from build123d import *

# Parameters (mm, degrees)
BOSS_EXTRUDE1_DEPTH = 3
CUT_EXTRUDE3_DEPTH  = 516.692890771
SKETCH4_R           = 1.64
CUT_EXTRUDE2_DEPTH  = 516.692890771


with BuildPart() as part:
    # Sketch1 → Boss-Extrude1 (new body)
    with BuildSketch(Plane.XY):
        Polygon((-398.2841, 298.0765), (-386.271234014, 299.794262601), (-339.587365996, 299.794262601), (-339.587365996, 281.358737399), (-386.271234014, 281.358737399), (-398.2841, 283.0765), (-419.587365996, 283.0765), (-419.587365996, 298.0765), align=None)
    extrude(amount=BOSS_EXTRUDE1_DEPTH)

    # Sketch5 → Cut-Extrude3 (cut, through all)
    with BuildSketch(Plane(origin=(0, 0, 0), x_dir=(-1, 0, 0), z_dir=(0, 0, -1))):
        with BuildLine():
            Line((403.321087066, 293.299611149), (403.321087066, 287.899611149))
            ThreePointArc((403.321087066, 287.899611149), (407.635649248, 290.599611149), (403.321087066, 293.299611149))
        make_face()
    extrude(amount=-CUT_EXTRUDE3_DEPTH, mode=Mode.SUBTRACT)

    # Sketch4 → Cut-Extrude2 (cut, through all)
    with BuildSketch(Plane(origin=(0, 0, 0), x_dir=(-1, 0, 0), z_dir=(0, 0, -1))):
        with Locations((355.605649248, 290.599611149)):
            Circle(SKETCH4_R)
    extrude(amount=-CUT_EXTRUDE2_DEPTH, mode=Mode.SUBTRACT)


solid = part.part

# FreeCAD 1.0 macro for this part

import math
import FreeCAD as App
import Part
import Sketcher
from FreeCAD import Vector
Q = App.Units.Quantity


def add_polygon(sketch, points):
    """Adds a closed chain of lines whose ends are joined by coincident constraints."""
    first, n = sketch.GeometryCount, len(points)
    for a, b in zip(points, points[1:] + points[:1]):
        sketch.addGeometry(Part.LineSegment(App.Vector(*a, 0), App.Vector(*b, 0)), False)
    for i in range(n):
        sketch.addConstraint(Sketcher.Constraint("Coincident", first + i, 2, first + (i + 1) % n, 1))

doc = App.newDocument("Part")
body = doc.addObject("PartDesign::Body", "Body")

# Sketch on XY plane
sketch1 = body.newObject("Sketcher::SketchObject", "Sketch")
sketch1.AttachmentSupport = (doc.getObject("XY_Plane"), [""])
sketch1.MapMode = "FlatFace"
add_polygon(sketch1, [(-386, 300), (-398, 298), (-420, 298), (-420, 283), (-398, 283), (-386, 281), (-340, 281), (-340, 300)])  # lines 0-7
sketch1.addConstraint([
    Sketcher.Constraint("Horizontal", 1),
    Sketcher.Constraint("Vertical", 2),
    Sketcher.Constraint("Horizontal", 3),
    Sketcher.Constraint("Horizontal", 5),
    Sketcher.Constraint("Vertical", 6),
    Sketcher.Constraint("Horizontal", 7),
    Sketcher.Constraint("Vertical", 0, 2, 3, 2),
    Sketcher.Constraint("Vertical", 4, 2, 7, 2),
    Sketcher.Constraint("Equal", 0, 4),
    Sketcher.Constraint("DistanceY", 2, 2, 2, 1, Q("15 mm")),
    Sketcher.Constraint("DistanceX", 2, 2, 5, 2, Q("80 mm")),
    Sketcher.Constraint("DistanceX", 5, 1, 5, 2, Q("46.683868 mm")),
    Sketcher.Constraint("DistanceX", 0, 2, -1, 1, Q("398.2841 mm")),
    Sketcher.Constraint("DistanceY", -1, 1, 0, 2, Q("298.0765 mm")),
    Sketcher.Constraint("Distance", 0, Q("12.135059 mm")),
    Sketcher.Constraint("DistanceX", 1, 2, 1, 1, Q("21.303266 mm")),
])
pad1 = body.newObject("PartDesign::Pad", "Pad")
pad1.Profile = sketch1
pad1.Length = 3

# Sketch on XY plane
sketch2 = body.newObject("Sketcher::SketchObject", "Sketch001")
sketch2.AttachmentSupport = (doc.getObject("XY_Plane"), [""])
sketch2.MapMode = "FlatFace"
sketch2.addGeometry([
    Part.LineSegment(Vector(-403.3, 293.3, 0), Vector(-403.3, 287.9, 0)),
    Part.ArcOfCircle(Part.Circle(Vector(-404.6, 290.6, 0), Vector(0, 0, 1), 3), math.radians(64), math.radians(296)),
], False)
sketch2.addConstraint([
    Sketcher.Constraint("Coincident", 0, 1, 1, 1),
    Sketcher.Constraint("Coincident", 1, 2, 0, 2),
    Sketcher.Constraint("Vertical", 0),
    Sketcher.Constraint("DistanceY", 0, 2, 0, 1, Q("5.4 mm")),
    Sketcher.Constraint("Radius", 1, Q("3.002095 mm")),
    Sketcher.Constraint("DistanceY", -1, 1, 1, 3, Q("290.599611 mm")),
    Sketcher.Constraint("DistanceX", 1, 3, -1, 1, Q("404.633555 mm")),
])
pocket1 = body.newObject("PartDesign::Pocket", "Pocket")
pocket1.Profile = sketch2
pocket1.Type = "ThroughAll"
pocket1.Reversed = True

# Sketch on XY plane
sketch3 = body.newObject("Sketcher::SketchObject", "Sketch002")
sketch3.AttachmentSupport = (doc.getObject("XY_Plane"), [""])
sketch3.MapMode = "FlatFace"
sketch3.addGeometry(Part.Circle(Vector(-355.6, 290.6, 0), Vector(0, 0, 1), 1.6), False)
sketch3.addConstraint([
    Sketcher.Constraint("Diameter", 0, Q("3.28 mm")),
    Sketcher.Constraint("DistanceX", 0, 3, -1, 1, Q("355.605649 mm")),
    Sketcher.Constraint("DistanceY", -1, 1, 0, 3, Q("290.599611 mm")),
])
pocket2 = body.newObject("PartDesign::Pocket", "Pocket001")
pocket2.Profile = sketch3
pocket2.Type = "ThroughAll"
pocket2.Reversed = True

doc.recompute()
